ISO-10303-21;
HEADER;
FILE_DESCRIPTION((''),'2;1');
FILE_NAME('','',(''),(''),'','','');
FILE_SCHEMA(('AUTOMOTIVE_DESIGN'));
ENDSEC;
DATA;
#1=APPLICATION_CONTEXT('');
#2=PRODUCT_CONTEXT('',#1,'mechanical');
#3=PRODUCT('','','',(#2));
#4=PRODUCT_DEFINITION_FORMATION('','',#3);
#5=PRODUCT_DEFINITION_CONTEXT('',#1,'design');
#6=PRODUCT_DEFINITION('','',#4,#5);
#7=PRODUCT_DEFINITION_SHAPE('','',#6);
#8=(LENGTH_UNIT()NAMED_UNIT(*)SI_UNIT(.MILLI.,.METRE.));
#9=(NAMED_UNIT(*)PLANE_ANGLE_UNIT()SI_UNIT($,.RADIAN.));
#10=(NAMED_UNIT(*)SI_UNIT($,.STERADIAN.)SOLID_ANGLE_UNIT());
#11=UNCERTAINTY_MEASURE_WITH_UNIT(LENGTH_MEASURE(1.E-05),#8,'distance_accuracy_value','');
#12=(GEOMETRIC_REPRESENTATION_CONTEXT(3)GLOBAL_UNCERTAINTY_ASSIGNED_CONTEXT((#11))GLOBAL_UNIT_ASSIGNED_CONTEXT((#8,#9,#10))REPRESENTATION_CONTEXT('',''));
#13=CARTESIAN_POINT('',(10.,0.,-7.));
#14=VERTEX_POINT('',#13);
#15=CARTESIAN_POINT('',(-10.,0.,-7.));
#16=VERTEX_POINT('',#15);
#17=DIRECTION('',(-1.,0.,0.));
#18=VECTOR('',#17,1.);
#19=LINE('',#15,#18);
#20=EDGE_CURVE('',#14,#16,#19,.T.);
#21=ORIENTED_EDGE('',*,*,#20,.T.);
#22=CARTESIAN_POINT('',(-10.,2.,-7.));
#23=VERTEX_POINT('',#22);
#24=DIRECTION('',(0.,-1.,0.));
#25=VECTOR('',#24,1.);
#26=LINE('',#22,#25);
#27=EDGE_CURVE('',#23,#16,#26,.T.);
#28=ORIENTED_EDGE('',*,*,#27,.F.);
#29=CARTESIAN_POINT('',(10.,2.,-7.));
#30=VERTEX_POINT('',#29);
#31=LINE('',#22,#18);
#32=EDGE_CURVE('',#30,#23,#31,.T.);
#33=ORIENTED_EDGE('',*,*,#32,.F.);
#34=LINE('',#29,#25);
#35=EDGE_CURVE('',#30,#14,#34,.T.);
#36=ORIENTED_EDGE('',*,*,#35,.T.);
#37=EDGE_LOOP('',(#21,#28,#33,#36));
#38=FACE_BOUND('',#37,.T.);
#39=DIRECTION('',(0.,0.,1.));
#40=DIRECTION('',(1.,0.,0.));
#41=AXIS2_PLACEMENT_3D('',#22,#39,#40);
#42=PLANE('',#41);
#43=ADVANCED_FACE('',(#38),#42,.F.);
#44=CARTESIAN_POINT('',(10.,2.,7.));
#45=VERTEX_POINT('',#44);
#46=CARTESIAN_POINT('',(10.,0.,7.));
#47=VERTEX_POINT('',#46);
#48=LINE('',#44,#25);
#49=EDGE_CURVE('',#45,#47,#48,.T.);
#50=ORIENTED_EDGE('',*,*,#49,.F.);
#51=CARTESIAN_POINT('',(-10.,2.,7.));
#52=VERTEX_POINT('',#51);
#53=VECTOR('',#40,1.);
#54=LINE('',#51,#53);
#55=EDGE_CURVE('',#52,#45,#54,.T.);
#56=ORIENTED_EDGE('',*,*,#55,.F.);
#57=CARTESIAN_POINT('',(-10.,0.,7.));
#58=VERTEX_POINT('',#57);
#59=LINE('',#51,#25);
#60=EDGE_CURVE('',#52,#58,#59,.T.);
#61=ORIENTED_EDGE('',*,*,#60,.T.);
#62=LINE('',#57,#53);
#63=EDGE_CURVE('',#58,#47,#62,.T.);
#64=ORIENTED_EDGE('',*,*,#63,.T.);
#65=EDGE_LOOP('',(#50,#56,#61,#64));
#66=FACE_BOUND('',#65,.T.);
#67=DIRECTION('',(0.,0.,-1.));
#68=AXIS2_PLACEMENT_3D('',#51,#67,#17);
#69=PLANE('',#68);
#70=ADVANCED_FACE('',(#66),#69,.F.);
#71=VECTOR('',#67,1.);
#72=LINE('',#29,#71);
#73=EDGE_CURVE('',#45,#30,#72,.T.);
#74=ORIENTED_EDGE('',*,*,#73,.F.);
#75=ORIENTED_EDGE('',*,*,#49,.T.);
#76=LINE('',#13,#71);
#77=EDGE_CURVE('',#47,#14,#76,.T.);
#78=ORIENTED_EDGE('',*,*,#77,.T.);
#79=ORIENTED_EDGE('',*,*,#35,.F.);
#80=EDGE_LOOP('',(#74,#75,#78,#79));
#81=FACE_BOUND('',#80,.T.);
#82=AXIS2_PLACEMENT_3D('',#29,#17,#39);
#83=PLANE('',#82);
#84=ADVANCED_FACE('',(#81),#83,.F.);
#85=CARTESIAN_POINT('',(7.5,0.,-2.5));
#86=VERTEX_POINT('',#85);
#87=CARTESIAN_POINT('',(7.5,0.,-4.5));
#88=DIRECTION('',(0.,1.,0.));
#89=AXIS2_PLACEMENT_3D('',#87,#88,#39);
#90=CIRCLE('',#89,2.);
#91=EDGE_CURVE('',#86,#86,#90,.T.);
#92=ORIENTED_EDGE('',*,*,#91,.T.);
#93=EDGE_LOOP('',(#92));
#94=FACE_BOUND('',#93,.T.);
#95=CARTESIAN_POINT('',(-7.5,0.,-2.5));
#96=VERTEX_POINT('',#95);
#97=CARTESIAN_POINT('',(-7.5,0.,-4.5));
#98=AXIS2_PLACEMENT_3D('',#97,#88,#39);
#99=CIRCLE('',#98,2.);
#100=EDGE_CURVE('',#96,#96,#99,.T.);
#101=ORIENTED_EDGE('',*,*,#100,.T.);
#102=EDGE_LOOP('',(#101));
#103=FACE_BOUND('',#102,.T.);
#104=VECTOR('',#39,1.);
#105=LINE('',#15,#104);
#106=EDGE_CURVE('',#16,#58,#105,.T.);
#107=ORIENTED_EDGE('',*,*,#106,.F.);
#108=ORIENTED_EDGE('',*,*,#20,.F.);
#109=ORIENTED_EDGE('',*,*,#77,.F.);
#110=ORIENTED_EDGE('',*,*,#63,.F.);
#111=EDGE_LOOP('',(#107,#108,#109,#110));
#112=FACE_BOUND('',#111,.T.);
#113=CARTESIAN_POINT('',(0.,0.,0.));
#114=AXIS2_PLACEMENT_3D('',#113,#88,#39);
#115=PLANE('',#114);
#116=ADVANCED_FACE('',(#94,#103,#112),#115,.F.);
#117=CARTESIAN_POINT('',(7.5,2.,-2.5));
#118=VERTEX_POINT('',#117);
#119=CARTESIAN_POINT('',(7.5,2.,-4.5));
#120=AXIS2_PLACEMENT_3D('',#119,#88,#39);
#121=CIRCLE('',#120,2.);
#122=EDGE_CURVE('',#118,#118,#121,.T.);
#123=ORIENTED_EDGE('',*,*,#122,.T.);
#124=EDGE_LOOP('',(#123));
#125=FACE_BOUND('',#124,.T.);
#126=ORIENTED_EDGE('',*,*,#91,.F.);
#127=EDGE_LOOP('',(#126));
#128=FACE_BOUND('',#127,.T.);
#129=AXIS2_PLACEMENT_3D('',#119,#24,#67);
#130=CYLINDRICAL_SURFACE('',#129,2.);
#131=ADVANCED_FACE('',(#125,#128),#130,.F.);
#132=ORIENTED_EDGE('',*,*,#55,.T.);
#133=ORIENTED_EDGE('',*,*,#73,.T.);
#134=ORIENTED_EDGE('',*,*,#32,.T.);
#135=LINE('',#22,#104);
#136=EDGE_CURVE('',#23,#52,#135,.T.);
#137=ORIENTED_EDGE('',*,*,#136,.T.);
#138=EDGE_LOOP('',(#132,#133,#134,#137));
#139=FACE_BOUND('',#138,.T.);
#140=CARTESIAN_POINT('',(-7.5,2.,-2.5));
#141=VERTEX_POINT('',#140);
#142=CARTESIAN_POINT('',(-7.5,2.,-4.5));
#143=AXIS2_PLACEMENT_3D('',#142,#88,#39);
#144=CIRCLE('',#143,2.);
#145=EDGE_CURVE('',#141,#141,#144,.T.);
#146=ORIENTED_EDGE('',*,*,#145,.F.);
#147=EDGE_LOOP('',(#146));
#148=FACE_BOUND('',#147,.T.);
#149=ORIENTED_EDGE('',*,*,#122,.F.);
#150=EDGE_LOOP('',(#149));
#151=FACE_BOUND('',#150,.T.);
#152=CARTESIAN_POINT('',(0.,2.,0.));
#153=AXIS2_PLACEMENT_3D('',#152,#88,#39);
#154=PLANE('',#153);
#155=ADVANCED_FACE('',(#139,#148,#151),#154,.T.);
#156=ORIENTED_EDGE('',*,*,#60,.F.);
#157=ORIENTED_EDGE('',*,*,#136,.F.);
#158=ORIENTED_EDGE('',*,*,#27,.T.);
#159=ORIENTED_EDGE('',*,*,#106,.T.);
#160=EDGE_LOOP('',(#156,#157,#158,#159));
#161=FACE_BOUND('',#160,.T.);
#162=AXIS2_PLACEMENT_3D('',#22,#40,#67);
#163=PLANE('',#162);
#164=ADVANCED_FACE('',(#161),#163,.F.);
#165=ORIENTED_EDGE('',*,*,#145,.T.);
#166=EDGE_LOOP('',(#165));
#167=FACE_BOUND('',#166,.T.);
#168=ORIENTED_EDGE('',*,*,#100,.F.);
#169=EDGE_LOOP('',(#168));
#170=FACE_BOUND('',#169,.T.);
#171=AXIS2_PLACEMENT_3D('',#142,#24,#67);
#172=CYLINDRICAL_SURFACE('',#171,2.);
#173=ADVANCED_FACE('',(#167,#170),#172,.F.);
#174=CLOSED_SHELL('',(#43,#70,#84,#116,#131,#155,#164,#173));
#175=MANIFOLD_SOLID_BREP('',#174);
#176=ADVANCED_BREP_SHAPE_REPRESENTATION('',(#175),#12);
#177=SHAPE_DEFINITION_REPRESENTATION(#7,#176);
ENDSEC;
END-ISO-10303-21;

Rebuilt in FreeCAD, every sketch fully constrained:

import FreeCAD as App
import Part
import Sketcher

V = App.Vector
Q = App.Units.Quantity


def add_polygon(sketch, points):
    """Adds a closed chain of lines whose ends are joined by coincident constraints."""
    first, n = sketch.GeometryCount, len(points)
    for a, b in zip(points, points[1:] + points[:1]):
        sketch.addGeometry(Part.LineSegment(App.Vector(*a, 0), App.Vector(*b, 0)), False)
    for i in range(n):
        sketch.addConstraint(Sketcher.Constraint("Coincident", first + i, 2, first + (i + 1) % n, 1))

doc = App.newDocument("Part")
params = doc.addObject("Spreadsheet::Sheet", "Params")
for row, (alias, value) in enumerate([
    ("sketch1_diameter", "4 mm"),
    ("sketch1_width", "20 mm"),
    ("sketch1_height", "14 mm"),
    ("pad1_length", "2 mm"),
], start=1):
    params.set(f"A{row}", alias)
    params.set(f"B{row}", "=" + value)
    params.setAlias(f"B{row}", alias)

body = doc.addObject("PartDesign::Body", "Body")

sketch1 = body.newObject("Sketcher::SketchObject", "Sketch")
sketch1.AttachmentSupport = (doc.getObject("XZ_Plane"), [""])
sketch1.MapMode = "FlatFace"
add_polygon(sketch1, [(-10, -7), (-10, 7), (10, 7), (10, -7)])
sketch1.addGeometry(Part.Circle(V(-7.5, -4.5, 0), V(0, 0, 1), 2), False)
sketch1.addGeometry(Part.Circle(V(7.5, -4.5, 0), V(0, 0, 1), 2), False)
sketch1.addConstraint([
    Sketcher.Constraint("Vertical", 0),
    Sketcher.Constraint("Horizontal", 1),
    Sketcher.Constraint("Vertical", 2),
    Sketcher.Constraint("Horizontal", 3),
    Sketcher.Constraint("Equal", 4, 5),
    Sketcher.Constraint("Symmetric", 0, 2, 2, 2, -1, 1),
    Sketcher.Constraint("Symmetric", 4, 3, 5, 3, -2),
    Sketcher.Constraint("Diameter", 4, Q("4 mm")),
    Sketcher.Constraint("DistanceX", 1, 1, 1, 2, Q("20 mm")),
    Sketcher.Constraint("DistanceY", 0, 1, 0, 2, Q("14 mm")),
    Sketcher.Constraint("DistanceX", 4, 3, 5, 3, Q("15 mm")),
    Sketcher.Constraint("DistanceY", 4, 3, -1, 1, Q("4.5 mm")),
])
sketch1.setExpression("Constraints[11]", "Params.sketch1_diameter")
sketch1.setExpression("Constraints[12]", "Params.sketch1_width")
sketch1.setExpression("Constraints[13]", "Params.sketch1_height")
pad1 = body.newObject("PartDesign::Pad", "Pad")
pad1.Profile = sketch1
pad1.setExpression("Length", "Params.pad1_length")
pad1.Reversed = True

doc.recompute()
